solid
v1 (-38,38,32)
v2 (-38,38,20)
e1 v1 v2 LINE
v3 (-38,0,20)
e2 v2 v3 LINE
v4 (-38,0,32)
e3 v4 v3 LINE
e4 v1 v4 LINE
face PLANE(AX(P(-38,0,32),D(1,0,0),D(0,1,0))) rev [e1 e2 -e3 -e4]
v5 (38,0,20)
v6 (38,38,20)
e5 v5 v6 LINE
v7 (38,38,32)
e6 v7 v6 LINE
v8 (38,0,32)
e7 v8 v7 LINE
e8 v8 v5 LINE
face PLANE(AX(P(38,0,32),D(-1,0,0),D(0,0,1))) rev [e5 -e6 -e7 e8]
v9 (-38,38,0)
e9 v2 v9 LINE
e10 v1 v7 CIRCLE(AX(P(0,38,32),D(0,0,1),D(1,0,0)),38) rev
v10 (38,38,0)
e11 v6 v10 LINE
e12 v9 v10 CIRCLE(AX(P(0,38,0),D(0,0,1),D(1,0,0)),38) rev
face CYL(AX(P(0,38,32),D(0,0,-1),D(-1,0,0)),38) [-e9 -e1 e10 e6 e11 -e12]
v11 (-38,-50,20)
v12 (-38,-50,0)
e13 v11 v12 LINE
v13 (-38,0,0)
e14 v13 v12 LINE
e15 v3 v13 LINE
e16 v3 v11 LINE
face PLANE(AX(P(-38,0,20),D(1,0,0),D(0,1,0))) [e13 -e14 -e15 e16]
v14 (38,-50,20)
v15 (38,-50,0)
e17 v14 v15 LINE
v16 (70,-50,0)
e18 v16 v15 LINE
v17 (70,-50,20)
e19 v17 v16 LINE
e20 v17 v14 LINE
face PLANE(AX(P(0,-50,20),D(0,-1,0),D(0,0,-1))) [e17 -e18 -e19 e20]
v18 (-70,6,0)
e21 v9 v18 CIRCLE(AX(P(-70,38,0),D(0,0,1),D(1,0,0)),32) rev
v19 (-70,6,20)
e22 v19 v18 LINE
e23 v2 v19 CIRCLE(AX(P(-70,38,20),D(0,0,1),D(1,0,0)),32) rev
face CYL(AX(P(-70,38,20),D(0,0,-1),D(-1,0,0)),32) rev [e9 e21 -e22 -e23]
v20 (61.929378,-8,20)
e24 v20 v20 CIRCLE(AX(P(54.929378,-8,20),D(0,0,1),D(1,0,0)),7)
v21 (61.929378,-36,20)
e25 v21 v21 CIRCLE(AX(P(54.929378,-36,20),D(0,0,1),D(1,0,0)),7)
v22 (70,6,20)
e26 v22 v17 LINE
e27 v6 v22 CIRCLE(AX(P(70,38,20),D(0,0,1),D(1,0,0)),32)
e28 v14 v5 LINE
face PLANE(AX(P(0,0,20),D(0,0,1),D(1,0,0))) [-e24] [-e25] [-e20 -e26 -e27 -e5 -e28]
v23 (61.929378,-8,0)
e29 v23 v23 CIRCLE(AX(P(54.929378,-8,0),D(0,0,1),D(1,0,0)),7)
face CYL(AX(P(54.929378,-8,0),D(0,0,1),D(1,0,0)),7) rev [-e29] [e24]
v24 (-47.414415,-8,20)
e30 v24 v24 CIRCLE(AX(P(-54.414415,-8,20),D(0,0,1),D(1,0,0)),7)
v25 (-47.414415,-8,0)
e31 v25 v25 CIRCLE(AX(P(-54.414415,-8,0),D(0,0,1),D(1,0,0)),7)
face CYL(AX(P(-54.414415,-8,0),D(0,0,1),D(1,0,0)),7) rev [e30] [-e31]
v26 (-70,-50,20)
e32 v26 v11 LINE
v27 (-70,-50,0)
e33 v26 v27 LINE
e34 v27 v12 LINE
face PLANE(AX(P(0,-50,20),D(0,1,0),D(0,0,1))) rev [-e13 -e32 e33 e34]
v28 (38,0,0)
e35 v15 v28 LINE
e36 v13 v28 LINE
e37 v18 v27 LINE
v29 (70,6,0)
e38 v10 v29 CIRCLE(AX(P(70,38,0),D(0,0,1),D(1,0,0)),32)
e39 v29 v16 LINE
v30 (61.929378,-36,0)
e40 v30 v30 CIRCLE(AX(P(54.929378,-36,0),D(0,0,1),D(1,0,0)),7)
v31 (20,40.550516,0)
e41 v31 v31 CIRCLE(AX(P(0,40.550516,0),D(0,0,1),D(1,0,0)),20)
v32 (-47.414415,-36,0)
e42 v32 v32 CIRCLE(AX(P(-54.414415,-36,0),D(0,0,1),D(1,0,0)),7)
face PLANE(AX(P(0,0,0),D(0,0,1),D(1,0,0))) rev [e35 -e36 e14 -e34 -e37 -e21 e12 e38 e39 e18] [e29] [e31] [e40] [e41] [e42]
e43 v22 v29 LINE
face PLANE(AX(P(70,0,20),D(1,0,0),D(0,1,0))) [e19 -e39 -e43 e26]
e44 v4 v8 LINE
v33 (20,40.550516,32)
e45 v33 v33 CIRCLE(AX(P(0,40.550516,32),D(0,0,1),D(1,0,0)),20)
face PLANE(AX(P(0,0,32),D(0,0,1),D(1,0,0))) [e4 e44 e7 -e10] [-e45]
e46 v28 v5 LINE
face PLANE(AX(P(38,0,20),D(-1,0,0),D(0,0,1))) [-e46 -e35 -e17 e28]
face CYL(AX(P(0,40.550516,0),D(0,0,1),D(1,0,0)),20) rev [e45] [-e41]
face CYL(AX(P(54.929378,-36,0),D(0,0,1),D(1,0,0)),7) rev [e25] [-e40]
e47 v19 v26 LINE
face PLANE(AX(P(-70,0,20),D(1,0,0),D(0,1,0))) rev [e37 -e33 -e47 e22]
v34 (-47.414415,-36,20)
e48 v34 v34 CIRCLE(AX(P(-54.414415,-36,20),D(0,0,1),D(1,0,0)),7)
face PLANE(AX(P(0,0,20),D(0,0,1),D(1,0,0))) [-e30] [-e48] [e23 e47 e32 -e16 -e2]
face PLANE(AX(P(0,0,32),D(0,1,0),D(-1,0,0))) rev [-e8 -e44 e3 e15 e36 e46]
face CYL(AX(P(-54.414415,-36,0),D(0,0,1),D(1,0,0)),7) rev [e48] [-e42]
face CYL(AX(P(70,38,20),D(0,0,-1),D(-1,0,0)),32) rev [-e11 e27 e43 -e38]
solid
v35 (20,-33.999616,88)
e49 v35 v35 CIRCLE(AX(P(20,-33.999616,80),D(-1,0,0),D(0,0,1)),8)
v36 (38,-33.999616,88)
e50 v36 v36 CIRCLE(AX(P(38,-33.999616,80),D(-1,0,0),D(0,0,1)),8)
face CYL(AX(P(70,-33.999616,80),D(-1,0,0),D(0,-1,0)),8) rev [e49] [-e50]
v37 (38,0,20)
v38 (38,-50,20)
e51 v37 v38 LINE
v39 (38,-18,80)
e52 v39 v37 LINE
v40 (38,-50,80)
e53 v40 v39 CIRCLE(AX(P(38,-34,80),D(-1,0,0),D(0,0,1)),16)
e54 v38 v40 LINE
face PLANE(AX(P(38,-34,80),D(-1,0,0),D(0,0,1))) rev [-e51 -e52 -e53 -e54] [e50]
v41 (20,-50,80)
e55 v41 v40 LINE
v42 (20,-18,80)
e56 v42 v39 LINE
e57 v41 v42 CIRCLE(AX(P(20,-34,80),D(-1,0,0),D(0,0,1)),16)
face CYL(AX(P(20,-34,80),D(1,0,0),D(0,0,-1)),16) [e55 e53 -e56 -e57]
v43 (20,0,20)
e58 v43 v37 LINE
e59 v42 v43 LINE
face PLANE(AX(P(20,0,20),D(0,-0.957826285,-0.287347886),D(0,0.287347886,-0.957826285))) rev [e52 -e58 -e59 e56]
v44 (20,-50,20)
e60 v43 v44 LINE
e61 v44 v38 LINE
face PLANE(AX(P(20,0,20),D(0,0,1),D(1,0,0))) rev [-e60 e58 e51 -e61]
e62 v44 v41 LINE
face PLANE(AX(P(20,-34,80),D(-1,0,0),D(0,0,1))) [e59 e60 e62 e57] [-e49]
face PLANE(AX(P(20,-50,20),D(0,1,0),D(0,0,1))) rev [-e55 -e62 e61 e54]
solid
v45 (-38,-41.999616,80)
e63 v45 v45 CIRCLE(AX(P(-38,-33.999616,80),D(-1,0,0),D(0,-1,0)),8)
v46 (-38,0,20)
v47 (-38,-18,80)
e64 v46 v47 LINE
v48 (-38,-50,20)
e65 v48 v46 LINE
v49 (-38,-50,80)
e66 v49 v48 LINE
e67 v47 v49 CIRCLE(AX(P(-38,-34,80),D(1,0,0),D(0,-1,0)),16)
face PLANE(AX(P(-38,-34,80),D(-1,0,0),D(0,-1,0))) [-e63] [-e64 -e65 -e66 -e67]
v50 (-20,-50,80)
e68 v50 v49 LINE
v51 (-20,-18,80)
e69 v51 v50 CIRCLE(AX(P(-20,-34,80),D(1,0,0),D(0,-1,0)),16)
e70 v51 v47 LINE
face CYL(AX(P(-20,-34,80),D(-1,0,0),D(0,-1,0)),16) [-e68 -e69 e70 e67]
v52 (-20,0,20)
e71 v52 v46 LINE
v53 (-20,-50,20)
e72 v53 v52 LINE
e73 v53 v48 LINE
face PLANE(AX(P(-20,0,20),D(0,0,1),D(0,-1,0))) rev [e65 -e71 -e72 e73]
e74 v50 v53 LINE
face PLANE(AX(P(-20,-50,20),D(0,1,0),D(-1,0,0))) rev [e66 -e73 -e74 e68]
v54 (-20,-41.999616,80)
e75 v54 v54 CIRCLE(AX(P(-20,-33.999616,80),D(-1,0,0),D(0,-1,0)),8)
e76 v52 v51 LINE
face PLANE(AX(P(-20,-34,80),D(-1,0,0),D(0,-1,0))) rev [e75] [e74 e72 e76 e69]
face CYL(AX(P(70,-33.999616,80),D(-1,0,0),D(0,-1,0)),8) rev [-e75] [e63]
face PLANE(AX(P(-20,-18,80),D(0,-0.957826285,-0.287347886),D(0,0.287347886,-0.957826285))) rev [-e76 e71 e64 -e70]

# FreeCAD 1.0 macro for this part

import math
import FreeCAD as App
import Part
import Sketcher

V = App.Vector

doc = App.newDocument("Part")
body = doc.addObject("PartDesign::Body", "Body")

sketch1 = body.newObject("Sketcher::SketchObject", "Sketch")
sketch1.AttachmentSupport = (doc.getObject("XY_Plane"), [""])
sketch1.MapMode = "FlatFace"
sketch1.addGeometry(Part.ArcOfCircle(Part.Circle(V(0, 38, 0), V(0, 0, 1), 38), math.radians(0), math.radians(180)), False)
sketch1.addGeometry(Part.LineSegment(V(-38, 38, 0), V(-38, 0, 0)), False)
sketch1.addGeometry(Part.LineSegment(V(-38, 0, 0), V(38, 0, 0)), False)
sketch1.addGeometry(Part.LineSegment(V(38, 0, 0), V(38, 38, 0)), False)
sketch1.addConstraint(Sketcher.Constraint("Tangent", 0, 2, 1, 1))
sketch1.addConstraint(Sketcher.Constraint("Coincident", 1, 2, 2, 1))
sketch1.addConstraint(Sketcher.Constraint("Coincident", 2, 2, 3, 1))
sketch1.addConstraint(Sketcher.Constraint("Tangent", 3, 2, 0, 1))
sketch1.addConstraint(Sketcher.Constraint("Vertical", 1))
sketch1.addConstraint(Sketcher.Constraint("Horizontal", 2))
sketch1.addConstraint(Sketcher.Constraint("Vertical", 3))
sketch1.addConstraint(Sketcher.Constraint("Symmetric", 1, 2, 2, 2, -1, 1))
sketch1.addConstraint(Sketcher.Constraint("Radius", 0, 38.0))
sketch1.addConstraint(Sketcher.Constraint("DistanceY", 1, 2, 1, 1, 38.0))
pad1 = body.newObject("PartDesign::Pad", "Pad")
pad1.Profile = sketch1
pad1.Length = 32

sketch2 = body.newObject("Sketcher::SketchObject", "Sketch001")
sketch2.AttachmentSupport = (doc.getObject("XY_Plane"), [""])
sketch2.MapMode = "FlatFace"
sketch2.addGeometry(Part.LineSegment(V(-38, -50, 0), V(-38, 38, 0)), False)
sketch2.addGeometry(Part.ArcOfCircle(Part.Circle(V(-70, 38, 0), V(0, 0, 1), 32), math.radians(-90), math.radians(0)), False)
sketch2.addGeometry(Part.LineSegment(V(-70, 6, 0), V(-70, -50, 0)), False)
sketch2.addGeometry(Part.LineSegment(V(-70, -50, 0), V(-38, -50, 0)), False)
sketch2.addGeometry(Part.ArcOfCircle(Part.Circle(V(70, 38, 0), V(0, 0, 1), 32), math.radians(180), math.radians(270)), False)
sketch2.addGeometry(Part.LineSegment(V(38, 38, 0), V(38, -50, 0)), False)
sketch2.addGeometry(Part.LineSegment(V(38, -50, 0), V(70, -50, 0)), False)
sketch2.addGeometry(Part.LineSegment(V(70, -50, 0), V(70, 6, 0)), False)
sketch2.addConstraint(Sketcher.Constraint("Tangent", 0, 2, 1, 2))
sketch2.addConstraint(Sketcher.Constraint("Coincident", 1, 1, 2, 1))
sketch2.addConstraint(Sketcher.Constraint("Coincident", 2, 2, 3, 1))
sketch2.addConstraint(Sketcher.Constraint("Coincident", 3, 2, 0, 1))
sketch2.addConstraint(Sketcher.Constraint("Tangent", 4, 1, 5, 1))
sketch2.addConstraint(Sketcher.Constraint("Coincident", 5, 2, 6, 1))
sketch2.addConstraint(Sketcher.Constraint("Coincident", 6, 2, 7, 1))
sketch2.addConstraint(Sketcher.Constraint("Coincident", 7, 2, 4, 2))
sketch2.addConstraint(Sketcher.Constraint("Vertical", 0))
sketch2.addConstraint(Sketcher.Constraint("Vertical", 2))
sketch2.addConstraint(Sketcher.Constraint("Horizontal", 3))
sketch2.addConstraint(Sketcher.Constraint("Vertical", 5))
sketch2.addConstraint(Sketcher.Constraint("Horizontal", 6))
sketch2.addConstraint(Sketcher.Constraint("Vertical", 7))
sketch2.addConstraint(Sketcher.Constraint("Equal", 1, 4))
sketch2.addConstraint(Sketcher.Constraint("Symmetric", 1, 3, 4, 3, -2))
sketch2.addConstraint(Sketcher.Constraint("Symmetric", 2, 2, 6, 2, -2))
sketch2.addConstraint(Sketcher.Constraint("Vertical", 4, 3, 6, 2))
sketch2.addConstraint(Sketcher.Constraint("Radius", 1, 32.0))
sketch2.addConstraint(Sketcher.Constraint("DistanceY", 0, 1, 0, 2, 88.0))
sketch2.addConstraint(Sketcher.Constraint("DistanceX", 1, 3, -1, 1, 70.0))
sketch2.addConstraint(Sketcher.Constraint("DistanceY", -1, 1, 1, 3, 38.0))
pad2 = body.newObject("PartDesign::Pad", "Pad001")
pad2.Profile = sketch2
pad2.Length = 20

sketch3 = body.newObject("Sketcher::SketchObject", "Sketch002")
sketch3.AttachmentSupport = (doc.getObject("XY_Plane"), [""])
sketch3.MapMode = "FlatFace"
sketch3.AttachmentOffset = App.Placement(V(0, 0, 20), App.Rotation())
sketch3.addGeometry(Part.Circle(V(-54.414415, -8, 0), V(0, 0, 1), 7), False)
sketch3.addGeometry(Part.Circle(V(-54.414415, -36, 0), V(0, 0, 1), 7), False)
sketch3.addGeometry(Part.Circle(V(54.929378, -8, 0), V(0, 0, 1), 7), False)
sketch3.addGeometry(Part.Circle(V(54.929378, -36, 0), V(0, 0, 1), 7), False)
sketch3.addConstraint(Sketcher.Constraint("Equal", 0, 1))
sketch3.addConstraint(Sketcher.Constraint("Equal", 1, 2))
sketch3.addConstraint(Sketcher.Constraint("Equal", 2, 3))
sketch3.addConstraint(Sketcher.Constraint("Horizontal", 0, 3, 2, 3))
sketch3.addConstraint(Sketcher.Constraint("Horizontal", 1, 3, 3, 3))
sketch3.addConstraint(Sketcher.Constraint("Vertical", 0, 3, 1, 3))
sketch3.addConstraint(Sketcher.Constraint("Vertical", 2, 3, 3, 3))
sketch3.addConstraint(Sketcher.Constraint("Diameter", 0, 14.0))
sketch3.addConstraint(Sketcher.Constraint("DistanceY", 0, 3, -1, 1, 8.0))
sketch3.addConstraint(Sketcher.Constraint("DistanceY", 1, 3, -1, 1, 36.0))
sketch3.addConstraint(Sketcher.Constraint("DistanceX", 0, 3, -1, 1, 54.414415))
sketch3.addConstraint(Sketcher.Constraint("DistanceX", -1, 1, 2, 3, 54.929378))
pocket1 = body.newObject("PartDesign::Pocket", "Pocket")
pocket1.Profile = sketch3
pocket1.Length = 20

sketch4 = body.newObject("Sketcher::SketchObject", "Sketch003")
sketch4.AttachmentSupport = (doc.getObject("XY_Plane"), [""])
sketch4.MapMode = "FlatFace"
sketch4.AttachmentOffset = App.Placement(V(0, 0, 32), App.Rotation())
sketch4.addGeometry(Part.Circle(V(0, 40.550516, 0), V(0, 0, 1), 20), False)
sketch4.addConstraint(Sketcher.Constraint("PointOnObject", 0, 3, -2))
sketch4.addConstraint(Sketcher.Constraint("Diameter", 0, 40.0))
sketch4.addConstraint(Sketcher.Constraint("DistanceY", -1, 1, 0, 3, 40.550516))
pocket2 = body.newObject("PartDesign::Pocket", "Pocket001")
pocket2.Profile = sketch4
pocket2.Type = "ThroughAll"
body2 = doc.addObject("PartDesign::Body", "Body001")

sketch5 = body2.newObject("Sketcher::SketchObject", "Sketch004")
sketch5.AttachmentSupport = (doc.getObject("YZ_Plane001"), [""])
sketch5.MapMode = "FlatFace"
sketch5.AttachmentOffset = App.Placement(V(0, 0, -38), App.Rotation())
sketch5.addGeometry(Part.LineSegment(V(-50, 80, 0), V(-50, 20, 0)), False)
sketch5.addGeometry(Part.LineSegment(V(-50, 20, 0), V(0, 20, 0)), False)
sketch5.addGeometry(Part.LineSegment(V(0, 20, 0), V(-18, 80, 0)), False)
sketch5.addGeometry(Part.ArcOfCircle(Part.Circle(V(-34, 80, 0), V(0, 0, 1), 16), math.radians(0), math.radians(180)), False)
sketch5.addConstraint(Sketcher.Constraint("Coincident", 0, 2, 1, 1))
sketch5.addConstraint(Sketcher.Constraint("Coincident", 1, 2, 2, 1))
sketch5.addConstraint(Sketcher.Constraint("Coincident", 2, 2, 3, 1))
sketch5.addConstraint(Sketcher.Constraint("Tangent", 3, 2, 0, 1))
sketch5.addConstraint(Sketcher.Constraint("Vertical", 0))
sketch5.addConstraint(Sketcher.Constraint("Horizontal", 1))
sketch5.addConstraint(Sketcher.Constraint("PointOnObject", 1, 2, -2))
sketch5.addConstraint(Sketcher.Constraint("Horizontal", 3, 3, 2, 2))
sketch5.addConstraint(Sketcher.Constraint("Radius", 3, 16.0))
sketch5.addConstraint(Sketcher.Constraint("DistanceX", 1, 1, 1, 2, 50.0))
sketch5.addConstraint(Sketcher.Constraint("DistanceY", 0, 2, 0, 1, 60.0))
sketch5.addConstraint(Sketcher.Constraint("DistanceY", -1, 1, 3, 3, 80.0))
pad3 = body2.newObject("PartDesign::Pad", "Pad002")
pad3.Profile = sketch5
pad3.Length = 18
body3 = doc.addObject("PartDesign::Body", "Body002")

sketch6 = body3.newObject("Sketcher::SketchObject", "Sketch005")
sketch6.AttachmentSupport = (doc.getObject("YZ_Plane002"), [""])
sketch6.MapMode = "FlatFace"
sketch6.AttachmentOffset = App.Placement(V(0, 0, 38), App.Rotation())
sketch6.addGeometry(Part.LineSegment(V(-50, 20, 0), V(-50, 80, 0)), False)
sketch6.addGeometry(Part.ArcOfCircle(Part.Circle(V(-34, 80, 0), V(0, 0, 1), 16), math.radians(0), math.radians(180)), False)
sketch6.addGeometry(Part.LineSegment(V(-18, 80, 0), V(0, 20, 0)), False)
sketch6.addGeometry(Part.LineSegment(V(0, 20, 0), V(-50, 20, 0)), False)
sketch6.addConstraint(Sketcher.Constraint("Tangent", 0, 2, 1, 2))
sketch6.addConstraint(Sketcher.Constraint("Coincident", 1, 1, 2, 1))
sketch6.addConstraint(Sketcher.Constraint("Coincident", 2, 2, 3, 1))
sketch6.addConstraint(Sketcher.Constraint("Coincident", 3, 2, 0, 1))
sketch6.addConstraint(Sketcher.Constraint("Vertical", 0))
sketch6.addConstraint(Sketcher.Constraint("Horizontal", 3))
sketch6.addConstraint(Sketcher.Constraint("PointOnObject", 2, 2, -2))
sketch6.addConstraint(Sketcher.Constraint("Horizontal", 0, 2, 1, 1))
sketch6.addConstraint(Sketcher.Constraint("Radius", 1, 16.0))
sketch6.addConstraint(Sketcher.Constraint("DistanceX", 3, 2, 3, 1, 50.0))
sketch6.addConstraint(Sketcher.Constraint("DistanceY", 0, 1, 0, 2, 60.0))
sketch6.addConstraint(Sketcher.Constraint("DistanceY", -1, 1, 1, 3, 80.0))
pad4 = body3.newObject("PartDesign::Pad", "Pad003")
pad4.Profile = sketch6
pad4.Length = 18
pad4.Reversed = True
body4 = doc.addObject("PartDesign::Body", "Body003")

sketch7 = body4.newObject("Sketcher::SketchObject", "Sketch006")
sketch7.AttachmentSupport = (doc.getObject("YZ_Plane003"), [""])
sketch7.MapMode = "FlatFace"
sketch7.AttachmentOffset = App.Placement(V(0, 0, -38), App.Rotation())
sketch7.addGeometry(Part.Circle(V(-33.999616, 80, 0), V(0, 0, 1), 8), False)
sketch7.addConstraint(Sketcher.Constraint("Diameter", 0, 16.0))
sketch7.addConstraint(Sketcher.Constraint("DistanceY", -1, 1, 0, 3, 80.0))
sketch7.addConstraint(Sketcher.Constraint("DistanceX", 0, 3, -1, 1, 33.999616))
pad5 = body4.newObject("PartDesign::Pad", "Pad004")
pad5.Profile = sketch7
pad5.Length = 109
doc.recompute()

body5 = doc.addObject("PartDesign::Body", "Body004")
body5.BaseFeature = body4
boolean = body2.newObject("PartDesign::Boolean", "Boolean")
boolean.Type = "Cut"
boolean.addObjects([body5])
doc.recompute()

boolean2 = body3.newObject("PartDesign::Boolean", "Boolean001")
boolean2.Type = "Cut"
boolean2.addObjects([body4])

doc.recompute()
